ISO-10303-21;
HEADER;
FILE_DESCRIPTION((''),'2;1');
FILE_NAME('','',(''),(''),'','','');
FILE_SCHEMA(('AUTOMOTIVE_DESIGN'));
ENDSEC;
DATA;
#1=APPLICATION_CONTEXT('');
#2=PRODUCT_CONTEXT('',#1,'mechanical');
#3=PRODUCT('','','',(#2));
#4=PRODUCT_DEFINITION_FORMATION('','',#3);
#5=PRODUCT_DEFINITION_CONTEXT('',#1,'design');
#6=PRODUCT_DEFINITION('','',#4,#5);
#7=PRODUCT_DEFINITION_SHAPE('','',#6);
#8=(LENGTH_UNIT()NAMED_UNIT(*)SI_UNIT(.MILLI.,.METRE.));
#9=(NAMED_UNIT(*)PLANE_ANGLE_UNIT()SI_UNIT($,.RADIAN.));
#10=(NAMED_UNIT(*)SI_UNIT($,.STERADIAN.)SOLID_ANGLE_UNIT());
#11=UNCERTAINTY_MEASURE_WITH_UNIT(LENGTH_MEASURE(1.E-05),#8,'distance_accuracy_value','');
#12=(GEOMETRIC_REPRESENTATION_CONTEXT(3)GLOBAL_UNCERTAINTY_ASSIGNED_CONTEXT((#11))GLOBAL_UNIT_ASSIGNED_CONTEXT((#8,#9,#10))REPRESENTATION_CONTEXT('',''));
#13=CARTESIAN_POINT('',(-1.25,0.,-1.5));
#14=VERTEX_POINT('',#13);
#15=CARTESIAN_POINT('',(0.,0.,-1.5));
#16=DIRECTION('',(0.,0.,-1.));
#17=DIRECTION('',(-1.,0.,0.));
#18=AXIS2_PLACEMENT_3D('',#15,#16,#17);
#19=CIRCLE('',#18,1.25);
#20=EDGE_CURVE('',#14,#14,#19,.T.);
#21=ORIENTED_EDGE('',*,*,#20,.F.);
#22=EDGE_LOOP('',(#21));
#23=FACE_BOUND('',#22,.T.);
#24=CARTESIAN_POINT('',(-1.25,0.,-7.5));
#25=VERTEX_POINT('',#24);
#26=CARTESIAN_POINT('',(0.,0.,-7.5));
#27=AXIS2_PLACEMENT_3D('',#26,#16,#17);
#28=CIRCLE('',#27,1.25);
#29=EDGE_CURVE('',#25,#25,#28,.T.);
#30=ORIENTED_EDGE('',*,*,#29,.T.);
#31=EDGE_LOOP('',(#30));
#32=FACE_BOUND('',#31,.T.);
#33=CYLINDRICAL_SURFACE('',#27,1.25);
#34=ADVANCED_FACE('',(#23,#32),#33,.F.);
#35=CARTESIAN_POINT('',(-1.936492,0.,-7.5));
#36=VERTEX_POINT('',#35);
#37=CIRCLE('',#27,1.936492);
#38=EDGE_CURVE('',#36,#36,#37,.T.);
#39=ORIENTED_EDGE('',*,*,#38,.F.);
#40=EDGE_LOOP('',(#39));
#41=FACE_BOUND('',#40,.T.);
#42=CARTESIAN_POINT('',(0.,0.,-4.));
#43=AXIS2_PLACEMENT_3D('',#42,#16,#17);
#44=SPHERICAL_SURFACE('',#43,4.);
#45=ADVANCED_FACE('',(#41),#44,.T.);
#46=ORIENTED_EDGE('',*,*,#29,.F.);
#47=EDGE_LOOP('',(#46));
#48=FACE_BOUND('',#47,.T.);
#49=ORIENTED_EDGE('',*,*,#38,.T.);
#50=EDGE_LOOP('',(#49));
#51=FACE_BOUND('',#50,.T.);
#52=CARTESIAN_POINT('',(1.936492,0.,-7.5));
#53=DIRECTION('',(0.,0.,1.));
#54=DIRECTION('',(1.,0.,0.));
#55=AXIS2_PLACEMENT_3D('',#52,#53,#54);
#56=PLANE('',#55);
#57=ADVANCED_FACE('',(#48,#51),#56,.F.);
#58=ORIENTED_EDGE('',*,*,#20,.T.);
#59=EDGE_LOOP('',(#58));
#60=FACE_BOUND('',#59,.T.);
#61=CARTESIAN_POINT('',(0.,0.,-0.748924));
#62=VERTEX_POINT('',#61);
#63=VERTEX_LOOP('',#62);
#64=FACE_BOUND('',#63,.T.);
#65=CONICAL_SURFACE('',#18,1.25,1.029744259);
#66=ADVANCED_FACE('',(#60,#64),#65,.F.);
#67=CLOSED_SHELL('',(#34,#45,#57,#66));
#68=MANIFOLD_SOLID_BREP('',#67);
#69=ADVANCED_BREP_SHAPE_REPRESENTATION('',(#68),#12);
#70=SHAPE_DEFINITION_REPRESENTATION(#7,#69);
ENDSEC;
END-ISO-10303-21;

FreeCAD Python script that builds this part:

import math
import FreeCAD as App
import Part
import Sketcher

V = App.Vector

doc = App.newDocument("Part")
params = doc.addObject("Spreadsheet::Sheet", "Params")
for row, (alias, value) in enumerate([
    ("sketch1_radius", "4 mm"),
    ("sketch1_height", "7.5 mm"),
    ("revolution_angle", "360 deg"),
    ("sketch2_diameter", "2.5 mm"),
    ("hole_diameter", "2.5 mm"),
    ("hole_depth", "6 mm"),
], start=1):
    params.set(f"A{row}", alias)
    params.set(f"B{row}", "=" + value)
    params.setAlias(f"B{row}", alias)

body = doc.addObject("PartDesign::Body", "Body")

sketch1 = body.newObject("Sketcher::SketchObject", "Sketch")
sketch1.AttachmentSupport = (doc.getObject("XZ_Plane"), [""])
sketch1.MapMode = "FlatFace"
sketch1.addGeometry(Part.LineSegment(V(1.9, -7.5, 0), V(0, -7.5, 0)), False)
sketch1.addGeometry(Part.LineSegment(V(0, -7.5, 0), V(0, 0, 0)), False)
sketch1.addGeometry(Part.ArcOfCircle(Part.Circle(V(0, -4, 0), V(0, 0, 1), 4), math.radians(-61), math.radians(90)), False)
sketch1.addConstraint(Sketcher.Constraint("Coincident", 0, 2, 1, 1))
sketch1.addConstraint(Sketcher.Constraint("Coincident", 1, 2, 2, 2))
sketch1.addConstraint(Sketcher.Constraint("Coincident", 2, 1, 0, 1))
sketch1.addConstraint(Sketcher.Constraint("Horizontal", 0))
sketch1.addConstraint(Sketcher.Constraint("Vertical", 1))
sketch1.addConstraint(Sketcher.Constraint("Coincident", 1, 2, -1, 1))
sketch1.addConstraint(Sketcher.Constraint("PointOnObject", 2, 3, -2))
sketch1.addConstraint(Sketcher.Constraint("Radius", 2, 4.0))
sketch1.addConstraint(Sketcher.Constraint("DistanceY", 1, 1, 1, 2, 7.5))
sketch1.setExpression("Constraints[7]", "Params.sketch1_radius")
sketch1.setExpression("Constraints[8]", "Params.sketch1_height")
revolution = body.newObject("PartDesign::Revolution", "Revolution")
revolution.Profile = sketch1
revolution.ReferenceAxis = (sketch1, ["V_Axis"])
revolution.setExpression("Angle", "Params.revolution_angle")

sketch2 = body.newObject("Sketcher::SketchObject", "Sketch001")
sketch2.AttachmentSupport = (doc.getObject("XY_Plane"), [""])
sketch2.MapMode = "FlatFace"
sketch2.AttachmentOffset = App.Placement(V(0, 0, -7.5), App.Rotation())
sketch2.addGeometry(Part.Circle(V(0, 0, 0), V(0, 0, 1), 1.2), False)
sketch2.addConstraint(Sketcher.Constraint("Coincident", 0, 3, -1, 1))
sketch2.addConstraint(Sketcher.Constraint("Diameter", 0, 2.5))
sketch2.setExpression("Constraints[1]", "Params.sketch2_diameter")
doc.recompute()
hole = body.newObject("PartDesign::Hole", "Hole")
hole.Profile = sketch2
hole.ThreadType = "None"
hole.setExpression("Diameter", "Params.hole_diameter")
hole.DepthType = "Dimension"
hole.setExpression("Depth", "Params.hole_depth")
hole.DrillPoint = "Angled"
hole.DrillPointAngle = 118
hole.Reversed = True

doc.recompute()
